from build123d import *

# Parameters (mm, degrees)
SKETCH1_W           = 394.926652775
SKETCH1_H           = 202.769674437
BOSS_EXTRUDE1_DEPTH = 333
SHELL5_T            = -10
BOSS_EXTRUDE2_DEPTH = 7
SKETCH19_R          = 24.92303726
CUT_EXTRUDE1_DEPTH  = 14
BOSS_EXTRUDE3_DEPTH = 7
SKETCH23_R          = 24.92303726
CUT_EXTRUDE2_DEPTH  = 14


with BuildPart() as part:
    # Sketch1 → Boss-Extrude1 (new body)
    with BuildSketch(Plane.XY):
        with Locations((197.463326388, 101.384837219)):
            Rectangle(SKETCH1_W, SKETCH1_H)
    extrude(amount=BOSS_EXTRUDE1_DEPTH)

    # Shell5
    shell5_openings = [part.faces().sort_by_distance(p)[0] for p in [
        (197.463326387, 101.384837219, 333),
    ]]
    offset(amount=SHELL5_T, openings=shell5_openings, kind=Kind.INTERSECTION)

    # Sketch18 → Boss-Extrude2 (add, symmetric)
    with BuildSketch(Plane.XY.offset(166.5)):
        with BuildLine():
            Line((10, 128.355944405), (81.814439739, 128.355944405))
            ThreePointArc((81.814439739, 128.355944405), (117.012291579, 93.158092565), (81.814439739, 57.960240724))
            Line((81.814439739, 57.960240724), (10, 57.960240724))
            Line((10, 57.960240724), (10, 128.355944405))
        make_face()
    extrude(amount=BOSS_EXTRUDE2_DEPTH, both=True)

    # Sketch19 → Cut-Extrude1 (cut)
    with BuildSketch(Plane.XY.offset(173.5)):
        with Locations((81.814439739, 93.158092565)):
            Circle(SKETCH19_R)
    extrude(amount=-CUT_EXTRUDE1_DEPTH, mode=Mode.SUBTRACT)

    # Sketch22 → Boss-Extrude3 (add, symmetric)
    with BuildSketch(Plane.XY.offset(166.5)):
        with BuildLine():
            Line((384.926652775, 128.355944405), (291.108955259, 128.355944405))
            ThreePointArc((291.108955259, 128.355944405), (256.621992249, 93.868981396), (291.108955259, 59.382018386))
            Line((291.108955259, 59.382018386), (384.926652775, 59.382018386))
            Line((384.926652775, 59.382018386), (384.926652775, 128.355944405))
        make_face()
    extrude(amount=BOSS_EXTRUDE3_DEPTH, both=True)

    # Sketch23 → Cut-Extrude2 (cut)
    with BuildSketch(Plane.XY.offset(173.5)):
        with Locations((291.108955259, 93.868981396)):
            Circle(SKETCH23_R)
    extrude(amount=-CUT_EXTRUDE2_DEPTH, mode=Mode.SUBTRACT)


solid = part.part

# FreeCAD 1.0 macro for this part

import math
import FreeCAD as App
import Part
import Sketcher
from FreeCAD import Vector


def faces_at(feature, points):
    """Names of the faces that lie closest to the given points."""
    faces = feature.Shape.Faces
    near = lambda p: min(range(len(faces)), key=lambda i: faces[i].distToShape(Part.Vertex(*p))[0])
    return sorted({f"Face{near(p) + 1}" for p in points})


def add_polygon(sketch, points):
    """Adds a closed chain of lines whose ends are joined by coincident constraints."""
    first, n = sketch.GeometryCount, len(points)
    for a, b in zip(points, points[1:] + points[:1]):
        sketch.addGeometry(Part.LineSegment(App.Vector(*a, 0), App.Vector(*b, 0)), False)
    for i in range(n):
        sketch.addConstraint(Sketcher.Constraint("Coincident", first + i, 2, first + (i + 1) % n, 1))

doc = App.newDocument("Part")
body = doc.addObject("PartDesign::Body", "Body")

sketch1 = doc.addObject("Sketcher::SketchObject", "Sketch")
body.addObject(sketch1)
sketch1.AttachmentSupport = (doc.XY_Plane, [""])
sketch1.MapMode = "FlatFace"
add_polygon(sketch1, [(0, 202.769674), (0, 0), (394.926653, 0), (394.926653, 202.769674)])
sketch1.addConstraint([
    Sketcher.Constraint("Vertical", 0),
    Sketcher.Constraint("Horizontal", 1),
    Sketcher.Constraint("Vertical", 2),
    Sketcher.Constraint("Horizontal", 3),
    Sketcher.Constraint("Coincident", 0, 2, -1, 1),
    Sketcher.Constraint("DistanceX", 1, 1, 1, 2, 394.926653),
    Sketcher.Constraint("DistanceY", 0, 2, 0, 1, 202.769674),
])
pad1 = doc.addObject("PartDesign::Pad", "Pad")
body.addObject(pad1)
pad1.Profile = sketch1
pad1.Length = 333
doc.recompute()

thickness = doc.addObject("PartDesign::Thickness", "Thickness")
body.addObject(thickness)
thickness.Base = (pad1, faces_at(pad1, [(197.463, 101.385, 333)]))
thickness.Value = 10
thickness.Reversed = True
thickness.Join = "Intersection"

sketch2 = doc.addObject("Sketcher::SketchObject", "Sketch001")
body.addObject(sketch2)
sketch2.AttachmentSupport = (doc.XY_Plane, [""])
sketch2.MapMode = "FlatFace"
sketch2.AttachmentOffset = App.Placement(Vector(0, 0, 166.5), App.Rotation())
sketch2.addGeometry([
    Part.LineSegment(Vector(81.81444, 128.355944, 0), Vector(10, 128.355944, 0)),
    Part.LineSegment(Vector(10, 128.355944, 0), Vector(10, 57.960241, 0)),
    Part.LineSegment(Vector(10, 57.960241, 0), Vector(81.81444, 57.960241, 0)),
    Part.ArcOfCircle(Part.Circle(Vector(81.81444, 93.158093, 0), Vector(0, 0, 1), 35.197852), math.radians(-90), math.radians(90)),
], False)
sketch2.addConstraint([
    Sketcher.Constraint("Coincident", 0, 2, 1, 1),
    Sketcher.Constraint("Coincident", 1, 2, 2, 1),
    Sketcher.Constraint("Tangent", 2, 2, 3, 1),
    Sketcher.Constraint("Tangent", 3, 2, 0, 1),
    Sketcher.Constraint("Horizontal", 0),
    Sketcher.Constraint("Vertical", 1),
    Sketcher.Constraint("Horizontal", 2),
    Sketcher.Constraint("DistanceX", -1, 1, 0, 2, 10.0),
    Sketcher.Constraint("Radius", 3, 35.197852),
    Sketcher.Constraint("DistanceX", 0, 2, 0, 1, 71.81444),
    Sketcher.Constraint("DistanceY", -1, 1, 1, 2, 57.960241),
])
pad2 = doc.addObject("PartDesign::Pad", "Pad001")
body.addObject(pad2)
pad2.Profile = sketch2
pad2.Length = 14
pad2.Midplane = True

sketch3 = doc.addObject("Sketcher::SketchObject", "Sketch002")
body.addObject(sketch3)
sketch3.AttachmentSupport = (doc.XY_Plane, [""])
sketch3.MapMode = "FlatFace"
sketch3.AttachmentOffset = App.Placement(Vector(0, 0, 173.5), App.Rotation())
sketch3.addGeometry(Part.Circle(Vector(81.81444, 93.158093, 0), Vector(0, 0, 1), 24.923037), False)
sketch3.addConstraint([
    Sketcher.Constraint("Diameter", 0, 49.846075),
    Sketcher.Constraint("DistanceX", -1, 1, 0, 3, 81.81444),
    Sketcher.Constraint("DistanceY", -1, 1, 0, 3, 93.158093),
])
pocket1 = doc.addObject("PartDesign::Pocket", "Pocket")
body.addObject(pocket1)
pocket1.Profile = sketch3
pocket1.Length = 14

sketch4 = doc.addObject("Sketcher::SketchObject", "Sketch003")
body.addObject(sketch4)
sketch4.AttachmentSupport = (doc.XY_Plane, [""])
sketch4.MapMode = "FlatFace"
sketch4.AttachmentOffset = App.Placement(Vector(0, 0, 166.5), App.Rotation())
sketch4.addGeometry([
    Part.LineSegment(Vector(384.926653, 128.355944, 0), Vector(291.108955, 128.355944, 0)),
    Part.ArcOfCircle(Part.Circle(Vector(291.108955, 93.868981, 0), Vector(0, 0, 1), 34.486963), math.radians(90), math.radians(270)),
    Part.LineSegment(Vector(291.108955, 59.382018, 0), Vector(384.926653, 59.382018, 0)),
    Part.LineSegment(Vector(384.926653, 59.382018, 0), Vector(384.926653, 128.355944, 0)),
], False)
sketch4.addConstraint([
    Sketcher.Constraint("Tangent", 0, 2, 1, 1),
    Sketcher.Constraint("Tangent", 1, 2, 2, 1),
    Sketcher.Constraint("Coincident", 2, 2, 3, 1),
    Sketcher.Constraint("Coincident", 3, 2, 0, 1),
    Sketcher.Constraint("Horizontal", 0),
    Sketcher.Constraint("Horizontal", 2),
    Sketcher.Constraint("Vertical", 3),
    Sketcher.Constraint("Radius", 1, 34.486963),
    Sketcher.Constraint("DistanceX", 0, 2, 0, 1, 93.817698),
    Sketcher.Constraint("DistanceY", -1, 1, 1, 3, 93.868981),
    Sketcher.Constraint("DistanceX", -1, 1, 1, 3, 291.108955),
])
pad3 = doc.addObject("PartDesign::Pad", "Pad002")
body.addObject(pad3)
pad3.Profile = sketch4
pad3.Length = 14
pad3.Midplane = True

sketch5 = doc.addObject("Sketcher::SketchObject", "Sketch004")
body.addObject(sketch5)
sketch5.AttachmentSupport = (doc.XY_Plane, [""])
sketch5.MapMode = "FlatFace"
sketch5.AttachmentOffset = App.Placement(Vector(0, 0, 173.5), App.Rotation())
sketch5.addGeometry(Part.Circle(Vector(291.108955, 93.868981, 0), Vector(0, 0, 1), 24.923037), False)
sketch5.addConstraint([
    Sketcher.Constraint("Diameter", 0, 49.846075),
    Sketcher.Constraint("DistanceY", -1, 1, 0, 3, 93.868981),
    Sketcher.Constraint("DistanceX", -1, 1, 0, 3, 291.108955),
])
pocket2 = doc.addObject("PartDesign::Pocket", "Pocket001")
body.addObject(pocket2)
pocket2.Profile = sketch5
pocket2.Length = 14

doc.recompute()
